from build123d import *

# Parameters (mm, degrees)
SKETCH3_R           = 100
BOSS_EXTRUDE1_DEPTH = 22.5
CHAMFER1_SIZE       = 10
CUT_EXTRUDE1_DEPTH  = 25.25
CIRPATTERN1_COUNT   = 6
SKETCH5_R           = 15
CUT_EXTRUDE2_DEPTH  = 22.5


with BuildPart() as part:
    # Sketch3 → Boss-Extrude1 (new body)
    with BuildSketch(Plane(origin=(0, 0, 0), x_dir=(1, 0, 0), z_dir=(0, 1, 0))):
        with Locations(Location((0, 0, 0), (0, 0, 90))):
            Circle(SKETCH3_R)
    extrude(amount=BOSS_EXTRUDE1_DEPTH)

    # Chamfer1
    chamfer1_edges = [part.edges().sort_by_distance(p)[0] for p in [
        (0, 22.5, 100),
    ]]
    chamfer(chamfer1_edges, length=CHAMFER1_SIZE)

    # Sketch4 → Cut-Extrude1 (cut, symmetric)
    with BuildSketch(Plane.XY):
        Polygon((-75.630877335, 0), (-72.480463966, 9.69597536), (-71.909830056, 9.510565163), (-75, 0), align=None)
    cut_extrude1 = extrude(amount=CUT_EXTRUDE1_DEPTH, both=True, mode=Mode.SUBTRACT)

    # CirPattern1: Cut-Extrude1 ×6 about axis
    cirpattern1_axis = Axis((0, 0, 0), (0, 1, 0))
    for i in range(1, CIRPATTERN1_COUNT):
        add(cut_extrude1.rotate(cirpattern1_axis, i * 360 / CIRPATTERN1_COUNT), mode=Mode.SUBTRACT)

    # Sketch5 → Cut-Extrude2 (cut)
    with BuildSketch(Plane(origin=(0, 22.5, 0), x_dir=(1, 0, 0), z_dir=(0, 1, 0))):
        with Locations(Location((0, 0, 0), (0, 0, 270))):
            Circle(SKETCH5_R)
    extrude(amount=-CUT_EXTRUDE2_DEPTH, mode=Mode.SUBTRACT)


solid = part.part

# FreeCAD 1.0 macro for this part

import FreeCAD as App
import Part
import Sketcher
Q = App.Units.Quantity


def edges_at(feature, points):
    """Names of the edges that pass closest to the given points."""
    edges = feature.Shape.Edges
    near = lambda p: min(range(len(edges)), key=lambda i: edges[i].distToShape(Part.Vertex(*p))[0])
    return sorted({f"Edge{near(p) + 1}" for p in points})

doc = App.newDocument("Part")
body = doc.addObject("PartDesign::Body", "Body")

# Sketch on XZ plane
sketch1 = body.newObject("Sketcher::SketchObject", "Sketch")
sketch1.AttachmentSupport = (doc.getObject("XZ_Plane"), [""])
sketch1.MapMode = "FlatFace"
sketch1.addGeometry(Part.Circle(App.Vector(0, 0, 0), App.Vector(0, 0, 1), 100), False)
sketch1.addConstraint([
    Sketcher.Constraint("Coincident", 0, 3, -1, 1),
    Sketcher.Constraint("Diameter", 0, Q("200 mm")),
])
pad1 = body.newObject("PartDesign::Pad", "Pad")
pad1.Profile = sketch1
pad1.Length = 22.5
pad1.Reversed = True
doc.recompute()

chamfer = body.newObject("PartDesign::Chamfer", "Chamfer")
chamfer.Base = (pad1, edges_at(pad1, [(0, 22.5, 100)]))
chamfer.Size = 10

# Sketch on XY plane
sketch2 = body.newObject("Sketcher::SketchObject", "Sketch001")
sketch2.AttachmentSupport = (doc.getObject("XY_Plane"), [""])
sketch2.MapMode = "FlatFace"
sketch2.addGeometry([
    Part.LineSegment(App.Vector(-72.480464, 9.695975, 0), App.Vector(-75.630877, 0, 0)),
    Part.LineSegment(App.Vector(-75.630877, 0, 0), App.Vector(-75, 0, 0)),
    Part.LineSegment(App.Vector(-75, 0, 0), App.Vector(-71.90983, 9.510565, 0)),
    Part.LineSegment(App.Vector(-71.90983, 9.510565, 0), App.Vector(-72.480464, 9.695975, 0)),
], False)
sketch2.addConstraint([
    Sketcher.Constraint("Coincident", 0, 2, 1, 1),
    Sketcher.Constraint("Coincident", 1, 2, 2, 1),
    Sketcher.Constraint("Coincident", 2, 2, 3, 1),
    Sketcher.Constraint("Coincident", 3, 2, 0, 1),
    Sketcher.Constraint("Horizontal", 1),
    Sketcher.Constraint("PointOnObject", 0, 2, -1),
    Sketcher.Constraint("Parallel", 0, 2),
    Sketcher.Constraint("Perpendicular", 2, 3),
    Sketcher.Constraint("Angle", 0, Q("-108 deg")),
    Sketcher.Constraint("Distance", 2, Q("10 mm")),
    Sketcher.Constraint("DistanceX", 1, 2, -1, 1, Q("75 mm")),
    Sketcher.Constraint("Distance", 3, Q("0.6 mm")),
])
pocket1 = body.newObject("PartDesign::Pocket", "Pocket")
pocket1.Profile = sketch2
pocket1.Length = 50.5
pocket1.Midplane = True
doc.recompute()

polarpattern = body.newObject("PartDesign::PolarPattern", "PolarPattern")
polarpattern.Originals = [pocket1]
polarpattern.Axis = (doc.getObject("Y_Axis"), [""])
polarpattern.Angle = 360
polarpattern.Occurrences = 6
body.Tip = polarpattern

# Sketch on XZ plane
sketch3 = body.newObject("Sketcher::SketchObject", "Sketch002")
sketch3.AttachmentSupport = (doc.getObject("XZ_Plane"), [""])
sketch3.MapMode = "FlatFace"
sketch3.AttachmentOffset = App.Placement(App.Vector(0, 0, -22.5), App.Rotation())
sketch3.addGeometry(Part.Circle(App.Vector(0, 0, 0), App.Vector(0, 0, 1), 15), False)
sketch3.addConstraint([
    Sketcher.Constraint("Coincident", 0, 3, -1, 1),
    Sketcher.Constraint("Diameter", 0, Q("30 mm")),
])
pocket2 = body.newObject("PartDesign::Pocket", "Pocket001")
pocket2.Profile = sketch3
pocket2.Length = 22.5
pocket2.Reversed = True

doc.recompute()
